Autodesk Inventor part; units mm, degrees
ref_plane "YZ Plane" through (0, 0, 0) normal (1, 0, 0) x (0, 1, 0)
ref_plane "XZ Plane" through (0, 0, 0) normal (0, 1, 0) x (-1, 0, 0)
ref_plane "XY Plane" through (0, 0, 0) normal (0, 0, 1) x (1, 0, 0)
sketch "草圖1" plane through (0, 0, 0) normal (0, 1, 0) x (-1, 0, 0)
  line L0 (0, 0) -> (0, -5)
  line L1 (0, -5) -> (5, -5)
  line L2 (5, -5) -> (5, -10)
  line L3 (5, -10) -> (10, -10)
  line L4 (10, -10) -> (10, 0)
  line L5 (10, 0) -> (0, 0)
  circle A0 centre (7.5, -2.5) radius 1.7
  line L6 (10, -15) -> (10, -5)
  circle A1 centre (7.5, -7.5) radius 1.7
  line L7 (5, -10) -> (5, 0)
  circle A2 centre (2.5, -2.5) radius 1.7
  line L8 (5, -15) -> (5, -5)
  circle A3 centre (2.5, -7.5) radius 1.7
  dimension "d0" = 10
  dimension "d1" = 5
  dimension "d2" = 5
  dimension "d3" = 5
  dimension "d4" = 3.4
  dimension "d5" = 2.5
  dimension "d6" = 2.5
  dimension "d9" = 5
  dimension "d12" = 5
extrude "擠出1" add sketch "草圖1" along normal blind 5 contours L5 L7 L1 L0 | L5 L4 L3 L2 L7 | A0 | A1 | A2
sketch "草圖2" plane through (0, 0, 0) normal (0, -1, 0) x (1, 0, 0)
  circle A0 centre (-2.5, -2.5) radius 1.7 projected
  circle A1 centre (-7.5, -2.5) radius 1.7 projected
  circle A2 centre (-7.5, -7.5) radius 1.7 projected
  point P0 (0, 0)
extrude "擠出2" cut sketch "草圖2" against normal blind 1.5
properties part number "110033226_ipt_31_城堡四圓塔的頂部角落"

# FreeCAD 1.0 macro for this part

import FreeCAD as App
import Part
import Sketcher

doc = App.newDocument("Part")
params = doc.addObject("Spreadsheet::Sheet", "Params")
for row, (alias, value) in enumerate([
    ("sketch1_width", "5 mm"),
    ("pad1_length", "5 mm"),
    ("sketch2_diameter", "3.4 mm"),
    ("pocket1_length", "1.5 mm"),
], start=1):
    params.set(f"A{row}", alias)
    params.set(f"B{row}", "=" + value)
    params.setAlias(f"B{row}", alias)

body = doc.addObject("PartDesign::Body", "Body")

# Sketch on XZ plane
sketch1 = doc.addObject("Sketcher::SketchObject", "Sketch")
body.addObject(sketch1)
sketch1.AttachmentSupport = (doc.XZ_Plane, [""])
sketch1.MapMode = "FlatFace"
sketch1.addGeometry([
    Part.LineSegment(App.Vector(0, 0, 0), App.Vector(0, -5, 0)),  # 0
    Part.LineSegment(App.Vector(0, -5, 0), App.Vector(-5, -5, 0)),  # 1
    Part.LineSegment(App.Vector(-5, -5, 0), App.Vector(-5, -10, 0)),  # 2
    Part.LineSegment(App.Vector(-5, -10, 0), App.Vector(-10, -10, 0)),  # 3
    Part.LineSegment(App.Vector(-10, -10, 0), App.Vector(-10, 0, 0)),  # 4
    Part.LineSegment(App.Vector(-10, 0, 0), App.Vector(0, 0, 0)),  # 5
], False)
sketch1.addConstraint([
    Sketcher.Constraint("Coincident", 0, 2, 1, 1),
    Sketcher.Constraint("Coincident", 1, 2, 2, 1),
    Sketcher.Constraint("Coincident", 2, 2, 3, 1),
    Sketcher.Constraint("Coincident", 3, 2, 4, 1),
    Sketcher.Constraint("Coincident", 4, 2, 5, 1),
    Sketcher.Constraint("Coincident", 5, 2, 0, 1),
    Sketcher.Constraint("Vertical", 0),
    Sketcher.Constraint("Horizontal", 1),
    Sketcher.Constraint("Vertical", 2),
    Sketcher.Constraint("Horizontal", 3),
    Sketcher.Constraint("Vertical", 4),
    Sketcher.Constraint("Horizontal", 5),
    Sketcher.Constraint("Coincident", 5, 2, -1, 1),
    Sketcher.Constraint("Equal", 1, 3),
    Sketcher.Constraint("Equal", 3, 0),
    Sketcher.Constraint("Equal", 0, 2),
    Sketcher.Constraint("DistanceX", 1, 2, 1, 1, 5.0),
])
sketch1.setExpression("Constraints[16]", "Params.sketch1_width")
pad1 = doc.addObject("PartDesign::Pad", "Pad")
body.addObject(pad1)
pad1.Profile = sketch1
pad1.setExpression("Length", "Params.pad1_length")
pad1.Reversed = True

# Sketch on XZ plane
sketch2 = doc.addObject("Sketcher::SketchObject", "Sketch001")
body.addObject(sketch2)
sketch2.AttachmentSupport = (doc.XZ_Plane, [""])
sketch2.MapMode = "FlatFace"
sketch2.addGeometry([
    Part.Circle(App.Vector(-2.5, -2.5, 0), App.Vector(0, 0, 1), 1.7),
    Part.Circle(App.Vector(-7.5, -2.5, 0), App.Vector(0, 0, 1), 1.7),
    Part.Circle(App.Vector(-7.5, -7.5, 0), App.Vector(0, 0, 1), 1.7),
], False)
sketch2.addConstraint([
    Sketcher.Constraint("Equal", 0, 1),
    Sketcher.Constraint("Equal", 1, 2),
    Sketcher.Constraint("Horizontal", 0, 3, 1, 3),
    Sketcher.Constraint("Vertical", 1, 3, 2, 3),
    Sketcher.Constraint("Diameter", 0, 3.4),
    Sketcher.Constraint("DistanceX", 1, 3, 0, 3, 5.0),
    Sketcher.Constraint("DistanceY", 2, 3, 1, 3, 5.0),
    Sketcher.Constraint("DistanceX", 0, 3, -1, 1, 2.5),
    Sketcher.Constraint("DistanceY", 0, 3, -1, 1, 2.5),
])
sketch2.setExpression("Constraints[4]", "Params.sketch2_diameter")
pocket1 = doc.addObject("PartDesign::Pocket", "Pocket")
body.addObject(pocket1)
pocket1.Profile = sketch2
pocket1.setExpression("Length", "Params.pocket1_length")

doc.recompute()
